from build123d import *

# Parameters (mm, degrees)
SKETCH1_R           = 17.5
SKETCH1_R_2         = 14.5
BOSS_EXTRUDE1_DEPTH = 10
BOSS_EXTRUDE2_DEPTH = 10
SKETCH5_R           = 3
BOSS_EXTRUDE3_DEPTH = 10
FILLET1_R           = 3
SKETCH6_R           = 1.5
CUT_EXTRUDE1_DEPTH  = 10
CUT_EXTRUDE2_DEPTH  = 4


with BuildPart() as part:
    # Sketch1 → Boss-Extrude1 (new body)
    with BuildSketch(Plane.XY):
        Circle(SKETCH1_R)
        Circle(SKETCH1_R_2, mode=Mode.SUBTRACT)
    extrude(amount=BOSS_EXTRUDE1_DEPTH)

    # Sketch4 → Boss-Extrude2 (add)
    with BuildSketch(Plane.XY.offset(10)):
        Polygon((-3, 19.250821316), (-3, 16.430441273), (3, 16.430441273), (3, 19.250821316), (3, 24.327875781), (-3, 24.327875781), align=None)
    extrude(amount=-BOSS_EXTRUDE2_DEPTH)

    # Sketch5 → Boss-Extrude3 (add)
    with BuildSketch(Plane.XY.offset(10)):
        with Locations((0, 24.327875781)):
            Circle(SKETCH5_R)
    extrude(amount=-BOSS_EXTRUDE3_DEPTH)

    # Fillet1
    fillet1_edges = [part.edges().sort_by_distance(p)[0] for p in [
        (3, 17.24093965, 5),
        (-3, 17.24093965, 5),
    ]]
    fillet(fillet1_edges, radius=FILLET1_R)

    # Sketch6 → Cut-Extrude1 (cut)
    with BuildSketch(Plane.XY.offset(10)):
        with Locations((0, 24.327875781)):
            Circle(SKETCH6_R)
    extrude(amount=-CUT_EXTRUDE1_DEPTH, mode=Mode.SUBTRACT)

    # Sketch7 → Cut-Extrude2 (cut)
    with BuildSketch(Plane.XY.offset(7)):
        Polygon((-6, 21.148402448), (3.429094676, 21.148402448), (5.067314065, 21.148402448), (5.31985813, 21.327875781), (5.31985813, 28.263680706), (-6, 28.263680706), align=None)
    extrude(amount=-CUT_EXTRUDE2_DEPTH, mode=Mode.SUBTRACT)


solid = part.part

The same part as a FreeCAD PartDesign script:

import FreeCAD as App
import Part
import Sketcher
from FreeCAD import Vector


def edges_at(feature, points):
    """Names of the edges that pass closest to the given points."""
    edges = feature.Shape.Edges
    near = lambda p: min(range(len(edges)), key=lambda i: edges[i].distToShape(Part.Vertex(*p))[0])
    return sorted({f"Edge{near(p) + 1}" for p in points})


def add_polygon(sketch, points):
    """Adds a closed chain of lines whose ends are joined by coincident constraints."""
    first, n = sketch.GeometryCount, len(points)
    for a, b in zip(points, points[1:] + points[:1]):
        sketch.addGeometry(Part.LineSegment(App.Vector(*a, 0), App.Vector(*b, 0)), False)
    for i in range(n):
        sketch.addConstraint(Sketcher.Constraint("Coincident", first + i, 2, first + (i + 1) % n, 1))

doc = App.newDocument("Part")
params = doc.addObject("Spreadsheet::Sheet", "Params")
for row, (alias, value) in enumerate([
    ("sketch1_diameter", "35 mm"),
    ("sketch1_diameter2", "29 mm"),
    ("pad1_length", "10 mm"),
    ("sketch2_width", "6 mm"),
    ("pad2_length", "10 mm"),
    ("sketch3_diameter", "6 mm"),
    ("pad3_length", "10 mm"),
    ("fillet_radius", "3 mm"),
    ("sketch4_diameter", "3 mm"),
    ("pocket1_length", "10 mm"),
    ("pocket2_length", "4 mm"),
], start=1):
    params.set(f"A{row}", alias)
    params.set(f"B{row}", "=" + value)
    params.setAlias(f"B{row}", alias)

body = doc.addObject("PartDesign::Body", "Body")

# Sketch on XY plane
sketch1 = body.newObject("Sketcher::SketchObject", "Sketch")
sketch1.AttachmentSupport = (doc.getObject("XY_Plane"), [""])
sketch1.MapMode = "FlatFace"
sketch1.addGeometry(Part.Circle(Vector(0, 0, 0), Vector(0, 0, 1), 18), False)
sketch1.addGeometry(Part.Circle(Vector(0, 0, 0), Vector(0, 0, 1), 14), False)
sketch1.addConstraint(Sketcher.Constraint("Coincident", 0, 3, -1, 1))
sketch1.addConstraint(Sketcher.Constraint("Coincident", 1, 3, -1, 1))
sketch1.addConstraint(Sketcher.Constraint("Diameter", 0, 35.0))
sketch1.addConstraint(Sketcher.Constraint("Diameter", 1, 29.0))
sketch1.setExpression("Constraints[2]", "Params.sketch1_diameter")
sketch1.setExpression("Constraints[3]", "Params.sketch1_diameter2")
pad1 = body.newObject("PartDesign::Pad", "Pad")
pad1.Profile = sketch1
pad1.setExpression("Length", "Params.pad1_length")

# Sketch on XY plane
sketch2 = body.newObject("Sketcher::SketchObject", "Sketch001")
sketch2.AttachmentSupport = (doc.getObject("XY_Plane"), [""])
sketch2.MapMode = "FlatFace"
sketch2.AttachmentOffset = App.Placement(Vector(0, 0, 10), App.Rotation())
add_polygon(sketch2, [(-3, 16), (3, 16), (3, 24), (-3, 24)])  # lines 0-3
sketch2.addConstraint(Sketcher.Constraint("Horizontal", 0))
sketch2.addConstraint(Sketcher.Constraint("Vertical", 1))
sketch2.addConstraint(Sketcher.Constraint("Horizontal", 2))
sketch2.addConstraint(Sketcher.Constraint("Vertical", 3))
sketch2.addConstraint(Sketcher.Constraint("DistanceX", 0, 1, 0, 2, 6.0))
sketch2.addConstraint(Sketcher.Constraint("DistanceX", -1, 1, 0, 2, 3.0))
sketch2.addConstraint(Sketcher.Constraint("DistanceY", 1, 1, 1, 2, 7.897435))
sketch2.addConstraint(Sketcher.Constraint("DistanceY", -1, 1, 0, 2, 16.430441))
sketch2.setExpression("Constraints[8]", "Params.sketch2_width")
pad2 = body.newObject("PartDesign::Pad", "Pad001")
pad2.Profile = sketch2
pad2.setExpression("Length", "Params.pad2_length")
pad2.Reversed = True

# Sketch on XY plane
sketch3 = body.newObject("Sketcher::SketchObject", "Sketch002")
sketch3.AttachmentSupport = (doc.getObject("XY_Plane"), [""])
sketch3.MapMode = "FlatFace"
sketch3.AttachmentOffset = App.Placement(Vector(0, 0, 10), App.Rotation())
sketch3.addGeometry(Part.Circle(Vector(0, 24.3, 0), Vector(0, 0, 1), 3), False)
sketch3.addConstraint(Sketcher.Constraint("PointOnObject", 0, 3, -2))
sketch3.addConstraint(Sketcher.Constraint("Diameter", 0, 6.0))
sketch3.addConstraint(Sketcher.Constraint("DistanceY", -1, 1, 0, 3, 24.327876))
sketch3.setExpression("Constraints[1]", "Params.sketch3_diameter")
pad3 = body.newObject("PartDesign::Pad", "Pad002")
pad3.Profile = sketch3
pad3.setExpression("Length", "Params.pad3_length")
pad3.Reversed = True
doc.recompute()

fillet = body.newObject("PartDesign::Fillet", "Fillet")
fillet.Base = (pad3, edges_at(pad3, [(3, 17.241, 5), (-3, 17.241, 5)]))
fillet.setExpression("Radius", "Params.fillet_radius")

# Sketch on XY plane
sketch4 = body.newObject("Sketcher::SketchObject", "Sketch003")
sketch4.AttachmentSupport = (doc.getObject("XY_Plane"), [""])
sketch4.MapMode = "FlatFace"
sketch4.AttachmentOffset = App.Placement(Vector(0, 0, 10), App.Rotation())
sketch4.addGeometry(Part.Circle(Vector(0, 24.3, 0), Vector(0, 0, 1), 1.5), False)
sketch4.addConstraint(Sketcher.Constraint("PointOnObject", 0, 3, -2))
sketch4.addConstraint(Sketcher.Constraint("Diameter", 0, 3.0))
sketch4.addConstraint(Sketcher.Constraint("DistanceY", -1, 1, 0, 3, 24.327876))
sketch4.setExpression("Constraints[1]", "Params.sketch4_diameter")
pocket1 = body.newObject("PartDesign::Pocket", "Pocket")
pocket1.Profile = sketch4
pocket1.setExpression("Length", "Params.pocket1_length")

# Sketch on XY plane
sketch5 = body.newObject("Sketcher::SketchObject", "Sketch004")
sketch5.AttachmentSupport = (doc.getObject("XY_Plane"), [""])
sketch5.MapMode = "FlatFace"
sketch5.AttachmentOffset = App.Placement(Vector(0, 0, 7), App.Rotation())
add_polygon(sketch5, [(-6, 21.15), (5.07, 21.15), (5.32, 21.33), (5.32, 28.26), (-6, 28.26)])  # lines 0-4
sketch5.addConstraint(Sketcher.Constraint("Horizontal", 0))
sketch5.addConstraint(Sketcher.Constraint("Vertical", 2))
sketch5.addConstraint(Sketcher.Constraint("Horizontal", 3))
sketch5.addConstraint(Sketcher.Constraint("Vertical", 4))
sketch5.addConstraint(Sketcher.Constraint("DistanceX", 3, 2, -1, 1, 6.0))
sketch5.addConstraint(Sketcher.Constraint("DistanceX", 3, 2, 3, 1, 11.319858))
sketch5.addConstraint(Sketcher.Constraint("DistanceY", 4, 2, 4, 1, 7.115278))
sketch5.addConstraint(Sketcher.Constraint("Distance", 1, 0.309821))
sketch5.addConstraint(Sketcher.Constraint("DistanceX", 0, 1, 0, 2, 11.067314))
sketch5.addConstraint(Sketcher.Constraint("DistanceY", -1, 1, 2, 2, 28.263681))
pocket2 = body.newObject("PartDesign::Pocket", "Pocket001")
pocket2.Profile = sketch5
pocket2.setExpression("Length", "Params.pocket2_length")

doc.recompute()
